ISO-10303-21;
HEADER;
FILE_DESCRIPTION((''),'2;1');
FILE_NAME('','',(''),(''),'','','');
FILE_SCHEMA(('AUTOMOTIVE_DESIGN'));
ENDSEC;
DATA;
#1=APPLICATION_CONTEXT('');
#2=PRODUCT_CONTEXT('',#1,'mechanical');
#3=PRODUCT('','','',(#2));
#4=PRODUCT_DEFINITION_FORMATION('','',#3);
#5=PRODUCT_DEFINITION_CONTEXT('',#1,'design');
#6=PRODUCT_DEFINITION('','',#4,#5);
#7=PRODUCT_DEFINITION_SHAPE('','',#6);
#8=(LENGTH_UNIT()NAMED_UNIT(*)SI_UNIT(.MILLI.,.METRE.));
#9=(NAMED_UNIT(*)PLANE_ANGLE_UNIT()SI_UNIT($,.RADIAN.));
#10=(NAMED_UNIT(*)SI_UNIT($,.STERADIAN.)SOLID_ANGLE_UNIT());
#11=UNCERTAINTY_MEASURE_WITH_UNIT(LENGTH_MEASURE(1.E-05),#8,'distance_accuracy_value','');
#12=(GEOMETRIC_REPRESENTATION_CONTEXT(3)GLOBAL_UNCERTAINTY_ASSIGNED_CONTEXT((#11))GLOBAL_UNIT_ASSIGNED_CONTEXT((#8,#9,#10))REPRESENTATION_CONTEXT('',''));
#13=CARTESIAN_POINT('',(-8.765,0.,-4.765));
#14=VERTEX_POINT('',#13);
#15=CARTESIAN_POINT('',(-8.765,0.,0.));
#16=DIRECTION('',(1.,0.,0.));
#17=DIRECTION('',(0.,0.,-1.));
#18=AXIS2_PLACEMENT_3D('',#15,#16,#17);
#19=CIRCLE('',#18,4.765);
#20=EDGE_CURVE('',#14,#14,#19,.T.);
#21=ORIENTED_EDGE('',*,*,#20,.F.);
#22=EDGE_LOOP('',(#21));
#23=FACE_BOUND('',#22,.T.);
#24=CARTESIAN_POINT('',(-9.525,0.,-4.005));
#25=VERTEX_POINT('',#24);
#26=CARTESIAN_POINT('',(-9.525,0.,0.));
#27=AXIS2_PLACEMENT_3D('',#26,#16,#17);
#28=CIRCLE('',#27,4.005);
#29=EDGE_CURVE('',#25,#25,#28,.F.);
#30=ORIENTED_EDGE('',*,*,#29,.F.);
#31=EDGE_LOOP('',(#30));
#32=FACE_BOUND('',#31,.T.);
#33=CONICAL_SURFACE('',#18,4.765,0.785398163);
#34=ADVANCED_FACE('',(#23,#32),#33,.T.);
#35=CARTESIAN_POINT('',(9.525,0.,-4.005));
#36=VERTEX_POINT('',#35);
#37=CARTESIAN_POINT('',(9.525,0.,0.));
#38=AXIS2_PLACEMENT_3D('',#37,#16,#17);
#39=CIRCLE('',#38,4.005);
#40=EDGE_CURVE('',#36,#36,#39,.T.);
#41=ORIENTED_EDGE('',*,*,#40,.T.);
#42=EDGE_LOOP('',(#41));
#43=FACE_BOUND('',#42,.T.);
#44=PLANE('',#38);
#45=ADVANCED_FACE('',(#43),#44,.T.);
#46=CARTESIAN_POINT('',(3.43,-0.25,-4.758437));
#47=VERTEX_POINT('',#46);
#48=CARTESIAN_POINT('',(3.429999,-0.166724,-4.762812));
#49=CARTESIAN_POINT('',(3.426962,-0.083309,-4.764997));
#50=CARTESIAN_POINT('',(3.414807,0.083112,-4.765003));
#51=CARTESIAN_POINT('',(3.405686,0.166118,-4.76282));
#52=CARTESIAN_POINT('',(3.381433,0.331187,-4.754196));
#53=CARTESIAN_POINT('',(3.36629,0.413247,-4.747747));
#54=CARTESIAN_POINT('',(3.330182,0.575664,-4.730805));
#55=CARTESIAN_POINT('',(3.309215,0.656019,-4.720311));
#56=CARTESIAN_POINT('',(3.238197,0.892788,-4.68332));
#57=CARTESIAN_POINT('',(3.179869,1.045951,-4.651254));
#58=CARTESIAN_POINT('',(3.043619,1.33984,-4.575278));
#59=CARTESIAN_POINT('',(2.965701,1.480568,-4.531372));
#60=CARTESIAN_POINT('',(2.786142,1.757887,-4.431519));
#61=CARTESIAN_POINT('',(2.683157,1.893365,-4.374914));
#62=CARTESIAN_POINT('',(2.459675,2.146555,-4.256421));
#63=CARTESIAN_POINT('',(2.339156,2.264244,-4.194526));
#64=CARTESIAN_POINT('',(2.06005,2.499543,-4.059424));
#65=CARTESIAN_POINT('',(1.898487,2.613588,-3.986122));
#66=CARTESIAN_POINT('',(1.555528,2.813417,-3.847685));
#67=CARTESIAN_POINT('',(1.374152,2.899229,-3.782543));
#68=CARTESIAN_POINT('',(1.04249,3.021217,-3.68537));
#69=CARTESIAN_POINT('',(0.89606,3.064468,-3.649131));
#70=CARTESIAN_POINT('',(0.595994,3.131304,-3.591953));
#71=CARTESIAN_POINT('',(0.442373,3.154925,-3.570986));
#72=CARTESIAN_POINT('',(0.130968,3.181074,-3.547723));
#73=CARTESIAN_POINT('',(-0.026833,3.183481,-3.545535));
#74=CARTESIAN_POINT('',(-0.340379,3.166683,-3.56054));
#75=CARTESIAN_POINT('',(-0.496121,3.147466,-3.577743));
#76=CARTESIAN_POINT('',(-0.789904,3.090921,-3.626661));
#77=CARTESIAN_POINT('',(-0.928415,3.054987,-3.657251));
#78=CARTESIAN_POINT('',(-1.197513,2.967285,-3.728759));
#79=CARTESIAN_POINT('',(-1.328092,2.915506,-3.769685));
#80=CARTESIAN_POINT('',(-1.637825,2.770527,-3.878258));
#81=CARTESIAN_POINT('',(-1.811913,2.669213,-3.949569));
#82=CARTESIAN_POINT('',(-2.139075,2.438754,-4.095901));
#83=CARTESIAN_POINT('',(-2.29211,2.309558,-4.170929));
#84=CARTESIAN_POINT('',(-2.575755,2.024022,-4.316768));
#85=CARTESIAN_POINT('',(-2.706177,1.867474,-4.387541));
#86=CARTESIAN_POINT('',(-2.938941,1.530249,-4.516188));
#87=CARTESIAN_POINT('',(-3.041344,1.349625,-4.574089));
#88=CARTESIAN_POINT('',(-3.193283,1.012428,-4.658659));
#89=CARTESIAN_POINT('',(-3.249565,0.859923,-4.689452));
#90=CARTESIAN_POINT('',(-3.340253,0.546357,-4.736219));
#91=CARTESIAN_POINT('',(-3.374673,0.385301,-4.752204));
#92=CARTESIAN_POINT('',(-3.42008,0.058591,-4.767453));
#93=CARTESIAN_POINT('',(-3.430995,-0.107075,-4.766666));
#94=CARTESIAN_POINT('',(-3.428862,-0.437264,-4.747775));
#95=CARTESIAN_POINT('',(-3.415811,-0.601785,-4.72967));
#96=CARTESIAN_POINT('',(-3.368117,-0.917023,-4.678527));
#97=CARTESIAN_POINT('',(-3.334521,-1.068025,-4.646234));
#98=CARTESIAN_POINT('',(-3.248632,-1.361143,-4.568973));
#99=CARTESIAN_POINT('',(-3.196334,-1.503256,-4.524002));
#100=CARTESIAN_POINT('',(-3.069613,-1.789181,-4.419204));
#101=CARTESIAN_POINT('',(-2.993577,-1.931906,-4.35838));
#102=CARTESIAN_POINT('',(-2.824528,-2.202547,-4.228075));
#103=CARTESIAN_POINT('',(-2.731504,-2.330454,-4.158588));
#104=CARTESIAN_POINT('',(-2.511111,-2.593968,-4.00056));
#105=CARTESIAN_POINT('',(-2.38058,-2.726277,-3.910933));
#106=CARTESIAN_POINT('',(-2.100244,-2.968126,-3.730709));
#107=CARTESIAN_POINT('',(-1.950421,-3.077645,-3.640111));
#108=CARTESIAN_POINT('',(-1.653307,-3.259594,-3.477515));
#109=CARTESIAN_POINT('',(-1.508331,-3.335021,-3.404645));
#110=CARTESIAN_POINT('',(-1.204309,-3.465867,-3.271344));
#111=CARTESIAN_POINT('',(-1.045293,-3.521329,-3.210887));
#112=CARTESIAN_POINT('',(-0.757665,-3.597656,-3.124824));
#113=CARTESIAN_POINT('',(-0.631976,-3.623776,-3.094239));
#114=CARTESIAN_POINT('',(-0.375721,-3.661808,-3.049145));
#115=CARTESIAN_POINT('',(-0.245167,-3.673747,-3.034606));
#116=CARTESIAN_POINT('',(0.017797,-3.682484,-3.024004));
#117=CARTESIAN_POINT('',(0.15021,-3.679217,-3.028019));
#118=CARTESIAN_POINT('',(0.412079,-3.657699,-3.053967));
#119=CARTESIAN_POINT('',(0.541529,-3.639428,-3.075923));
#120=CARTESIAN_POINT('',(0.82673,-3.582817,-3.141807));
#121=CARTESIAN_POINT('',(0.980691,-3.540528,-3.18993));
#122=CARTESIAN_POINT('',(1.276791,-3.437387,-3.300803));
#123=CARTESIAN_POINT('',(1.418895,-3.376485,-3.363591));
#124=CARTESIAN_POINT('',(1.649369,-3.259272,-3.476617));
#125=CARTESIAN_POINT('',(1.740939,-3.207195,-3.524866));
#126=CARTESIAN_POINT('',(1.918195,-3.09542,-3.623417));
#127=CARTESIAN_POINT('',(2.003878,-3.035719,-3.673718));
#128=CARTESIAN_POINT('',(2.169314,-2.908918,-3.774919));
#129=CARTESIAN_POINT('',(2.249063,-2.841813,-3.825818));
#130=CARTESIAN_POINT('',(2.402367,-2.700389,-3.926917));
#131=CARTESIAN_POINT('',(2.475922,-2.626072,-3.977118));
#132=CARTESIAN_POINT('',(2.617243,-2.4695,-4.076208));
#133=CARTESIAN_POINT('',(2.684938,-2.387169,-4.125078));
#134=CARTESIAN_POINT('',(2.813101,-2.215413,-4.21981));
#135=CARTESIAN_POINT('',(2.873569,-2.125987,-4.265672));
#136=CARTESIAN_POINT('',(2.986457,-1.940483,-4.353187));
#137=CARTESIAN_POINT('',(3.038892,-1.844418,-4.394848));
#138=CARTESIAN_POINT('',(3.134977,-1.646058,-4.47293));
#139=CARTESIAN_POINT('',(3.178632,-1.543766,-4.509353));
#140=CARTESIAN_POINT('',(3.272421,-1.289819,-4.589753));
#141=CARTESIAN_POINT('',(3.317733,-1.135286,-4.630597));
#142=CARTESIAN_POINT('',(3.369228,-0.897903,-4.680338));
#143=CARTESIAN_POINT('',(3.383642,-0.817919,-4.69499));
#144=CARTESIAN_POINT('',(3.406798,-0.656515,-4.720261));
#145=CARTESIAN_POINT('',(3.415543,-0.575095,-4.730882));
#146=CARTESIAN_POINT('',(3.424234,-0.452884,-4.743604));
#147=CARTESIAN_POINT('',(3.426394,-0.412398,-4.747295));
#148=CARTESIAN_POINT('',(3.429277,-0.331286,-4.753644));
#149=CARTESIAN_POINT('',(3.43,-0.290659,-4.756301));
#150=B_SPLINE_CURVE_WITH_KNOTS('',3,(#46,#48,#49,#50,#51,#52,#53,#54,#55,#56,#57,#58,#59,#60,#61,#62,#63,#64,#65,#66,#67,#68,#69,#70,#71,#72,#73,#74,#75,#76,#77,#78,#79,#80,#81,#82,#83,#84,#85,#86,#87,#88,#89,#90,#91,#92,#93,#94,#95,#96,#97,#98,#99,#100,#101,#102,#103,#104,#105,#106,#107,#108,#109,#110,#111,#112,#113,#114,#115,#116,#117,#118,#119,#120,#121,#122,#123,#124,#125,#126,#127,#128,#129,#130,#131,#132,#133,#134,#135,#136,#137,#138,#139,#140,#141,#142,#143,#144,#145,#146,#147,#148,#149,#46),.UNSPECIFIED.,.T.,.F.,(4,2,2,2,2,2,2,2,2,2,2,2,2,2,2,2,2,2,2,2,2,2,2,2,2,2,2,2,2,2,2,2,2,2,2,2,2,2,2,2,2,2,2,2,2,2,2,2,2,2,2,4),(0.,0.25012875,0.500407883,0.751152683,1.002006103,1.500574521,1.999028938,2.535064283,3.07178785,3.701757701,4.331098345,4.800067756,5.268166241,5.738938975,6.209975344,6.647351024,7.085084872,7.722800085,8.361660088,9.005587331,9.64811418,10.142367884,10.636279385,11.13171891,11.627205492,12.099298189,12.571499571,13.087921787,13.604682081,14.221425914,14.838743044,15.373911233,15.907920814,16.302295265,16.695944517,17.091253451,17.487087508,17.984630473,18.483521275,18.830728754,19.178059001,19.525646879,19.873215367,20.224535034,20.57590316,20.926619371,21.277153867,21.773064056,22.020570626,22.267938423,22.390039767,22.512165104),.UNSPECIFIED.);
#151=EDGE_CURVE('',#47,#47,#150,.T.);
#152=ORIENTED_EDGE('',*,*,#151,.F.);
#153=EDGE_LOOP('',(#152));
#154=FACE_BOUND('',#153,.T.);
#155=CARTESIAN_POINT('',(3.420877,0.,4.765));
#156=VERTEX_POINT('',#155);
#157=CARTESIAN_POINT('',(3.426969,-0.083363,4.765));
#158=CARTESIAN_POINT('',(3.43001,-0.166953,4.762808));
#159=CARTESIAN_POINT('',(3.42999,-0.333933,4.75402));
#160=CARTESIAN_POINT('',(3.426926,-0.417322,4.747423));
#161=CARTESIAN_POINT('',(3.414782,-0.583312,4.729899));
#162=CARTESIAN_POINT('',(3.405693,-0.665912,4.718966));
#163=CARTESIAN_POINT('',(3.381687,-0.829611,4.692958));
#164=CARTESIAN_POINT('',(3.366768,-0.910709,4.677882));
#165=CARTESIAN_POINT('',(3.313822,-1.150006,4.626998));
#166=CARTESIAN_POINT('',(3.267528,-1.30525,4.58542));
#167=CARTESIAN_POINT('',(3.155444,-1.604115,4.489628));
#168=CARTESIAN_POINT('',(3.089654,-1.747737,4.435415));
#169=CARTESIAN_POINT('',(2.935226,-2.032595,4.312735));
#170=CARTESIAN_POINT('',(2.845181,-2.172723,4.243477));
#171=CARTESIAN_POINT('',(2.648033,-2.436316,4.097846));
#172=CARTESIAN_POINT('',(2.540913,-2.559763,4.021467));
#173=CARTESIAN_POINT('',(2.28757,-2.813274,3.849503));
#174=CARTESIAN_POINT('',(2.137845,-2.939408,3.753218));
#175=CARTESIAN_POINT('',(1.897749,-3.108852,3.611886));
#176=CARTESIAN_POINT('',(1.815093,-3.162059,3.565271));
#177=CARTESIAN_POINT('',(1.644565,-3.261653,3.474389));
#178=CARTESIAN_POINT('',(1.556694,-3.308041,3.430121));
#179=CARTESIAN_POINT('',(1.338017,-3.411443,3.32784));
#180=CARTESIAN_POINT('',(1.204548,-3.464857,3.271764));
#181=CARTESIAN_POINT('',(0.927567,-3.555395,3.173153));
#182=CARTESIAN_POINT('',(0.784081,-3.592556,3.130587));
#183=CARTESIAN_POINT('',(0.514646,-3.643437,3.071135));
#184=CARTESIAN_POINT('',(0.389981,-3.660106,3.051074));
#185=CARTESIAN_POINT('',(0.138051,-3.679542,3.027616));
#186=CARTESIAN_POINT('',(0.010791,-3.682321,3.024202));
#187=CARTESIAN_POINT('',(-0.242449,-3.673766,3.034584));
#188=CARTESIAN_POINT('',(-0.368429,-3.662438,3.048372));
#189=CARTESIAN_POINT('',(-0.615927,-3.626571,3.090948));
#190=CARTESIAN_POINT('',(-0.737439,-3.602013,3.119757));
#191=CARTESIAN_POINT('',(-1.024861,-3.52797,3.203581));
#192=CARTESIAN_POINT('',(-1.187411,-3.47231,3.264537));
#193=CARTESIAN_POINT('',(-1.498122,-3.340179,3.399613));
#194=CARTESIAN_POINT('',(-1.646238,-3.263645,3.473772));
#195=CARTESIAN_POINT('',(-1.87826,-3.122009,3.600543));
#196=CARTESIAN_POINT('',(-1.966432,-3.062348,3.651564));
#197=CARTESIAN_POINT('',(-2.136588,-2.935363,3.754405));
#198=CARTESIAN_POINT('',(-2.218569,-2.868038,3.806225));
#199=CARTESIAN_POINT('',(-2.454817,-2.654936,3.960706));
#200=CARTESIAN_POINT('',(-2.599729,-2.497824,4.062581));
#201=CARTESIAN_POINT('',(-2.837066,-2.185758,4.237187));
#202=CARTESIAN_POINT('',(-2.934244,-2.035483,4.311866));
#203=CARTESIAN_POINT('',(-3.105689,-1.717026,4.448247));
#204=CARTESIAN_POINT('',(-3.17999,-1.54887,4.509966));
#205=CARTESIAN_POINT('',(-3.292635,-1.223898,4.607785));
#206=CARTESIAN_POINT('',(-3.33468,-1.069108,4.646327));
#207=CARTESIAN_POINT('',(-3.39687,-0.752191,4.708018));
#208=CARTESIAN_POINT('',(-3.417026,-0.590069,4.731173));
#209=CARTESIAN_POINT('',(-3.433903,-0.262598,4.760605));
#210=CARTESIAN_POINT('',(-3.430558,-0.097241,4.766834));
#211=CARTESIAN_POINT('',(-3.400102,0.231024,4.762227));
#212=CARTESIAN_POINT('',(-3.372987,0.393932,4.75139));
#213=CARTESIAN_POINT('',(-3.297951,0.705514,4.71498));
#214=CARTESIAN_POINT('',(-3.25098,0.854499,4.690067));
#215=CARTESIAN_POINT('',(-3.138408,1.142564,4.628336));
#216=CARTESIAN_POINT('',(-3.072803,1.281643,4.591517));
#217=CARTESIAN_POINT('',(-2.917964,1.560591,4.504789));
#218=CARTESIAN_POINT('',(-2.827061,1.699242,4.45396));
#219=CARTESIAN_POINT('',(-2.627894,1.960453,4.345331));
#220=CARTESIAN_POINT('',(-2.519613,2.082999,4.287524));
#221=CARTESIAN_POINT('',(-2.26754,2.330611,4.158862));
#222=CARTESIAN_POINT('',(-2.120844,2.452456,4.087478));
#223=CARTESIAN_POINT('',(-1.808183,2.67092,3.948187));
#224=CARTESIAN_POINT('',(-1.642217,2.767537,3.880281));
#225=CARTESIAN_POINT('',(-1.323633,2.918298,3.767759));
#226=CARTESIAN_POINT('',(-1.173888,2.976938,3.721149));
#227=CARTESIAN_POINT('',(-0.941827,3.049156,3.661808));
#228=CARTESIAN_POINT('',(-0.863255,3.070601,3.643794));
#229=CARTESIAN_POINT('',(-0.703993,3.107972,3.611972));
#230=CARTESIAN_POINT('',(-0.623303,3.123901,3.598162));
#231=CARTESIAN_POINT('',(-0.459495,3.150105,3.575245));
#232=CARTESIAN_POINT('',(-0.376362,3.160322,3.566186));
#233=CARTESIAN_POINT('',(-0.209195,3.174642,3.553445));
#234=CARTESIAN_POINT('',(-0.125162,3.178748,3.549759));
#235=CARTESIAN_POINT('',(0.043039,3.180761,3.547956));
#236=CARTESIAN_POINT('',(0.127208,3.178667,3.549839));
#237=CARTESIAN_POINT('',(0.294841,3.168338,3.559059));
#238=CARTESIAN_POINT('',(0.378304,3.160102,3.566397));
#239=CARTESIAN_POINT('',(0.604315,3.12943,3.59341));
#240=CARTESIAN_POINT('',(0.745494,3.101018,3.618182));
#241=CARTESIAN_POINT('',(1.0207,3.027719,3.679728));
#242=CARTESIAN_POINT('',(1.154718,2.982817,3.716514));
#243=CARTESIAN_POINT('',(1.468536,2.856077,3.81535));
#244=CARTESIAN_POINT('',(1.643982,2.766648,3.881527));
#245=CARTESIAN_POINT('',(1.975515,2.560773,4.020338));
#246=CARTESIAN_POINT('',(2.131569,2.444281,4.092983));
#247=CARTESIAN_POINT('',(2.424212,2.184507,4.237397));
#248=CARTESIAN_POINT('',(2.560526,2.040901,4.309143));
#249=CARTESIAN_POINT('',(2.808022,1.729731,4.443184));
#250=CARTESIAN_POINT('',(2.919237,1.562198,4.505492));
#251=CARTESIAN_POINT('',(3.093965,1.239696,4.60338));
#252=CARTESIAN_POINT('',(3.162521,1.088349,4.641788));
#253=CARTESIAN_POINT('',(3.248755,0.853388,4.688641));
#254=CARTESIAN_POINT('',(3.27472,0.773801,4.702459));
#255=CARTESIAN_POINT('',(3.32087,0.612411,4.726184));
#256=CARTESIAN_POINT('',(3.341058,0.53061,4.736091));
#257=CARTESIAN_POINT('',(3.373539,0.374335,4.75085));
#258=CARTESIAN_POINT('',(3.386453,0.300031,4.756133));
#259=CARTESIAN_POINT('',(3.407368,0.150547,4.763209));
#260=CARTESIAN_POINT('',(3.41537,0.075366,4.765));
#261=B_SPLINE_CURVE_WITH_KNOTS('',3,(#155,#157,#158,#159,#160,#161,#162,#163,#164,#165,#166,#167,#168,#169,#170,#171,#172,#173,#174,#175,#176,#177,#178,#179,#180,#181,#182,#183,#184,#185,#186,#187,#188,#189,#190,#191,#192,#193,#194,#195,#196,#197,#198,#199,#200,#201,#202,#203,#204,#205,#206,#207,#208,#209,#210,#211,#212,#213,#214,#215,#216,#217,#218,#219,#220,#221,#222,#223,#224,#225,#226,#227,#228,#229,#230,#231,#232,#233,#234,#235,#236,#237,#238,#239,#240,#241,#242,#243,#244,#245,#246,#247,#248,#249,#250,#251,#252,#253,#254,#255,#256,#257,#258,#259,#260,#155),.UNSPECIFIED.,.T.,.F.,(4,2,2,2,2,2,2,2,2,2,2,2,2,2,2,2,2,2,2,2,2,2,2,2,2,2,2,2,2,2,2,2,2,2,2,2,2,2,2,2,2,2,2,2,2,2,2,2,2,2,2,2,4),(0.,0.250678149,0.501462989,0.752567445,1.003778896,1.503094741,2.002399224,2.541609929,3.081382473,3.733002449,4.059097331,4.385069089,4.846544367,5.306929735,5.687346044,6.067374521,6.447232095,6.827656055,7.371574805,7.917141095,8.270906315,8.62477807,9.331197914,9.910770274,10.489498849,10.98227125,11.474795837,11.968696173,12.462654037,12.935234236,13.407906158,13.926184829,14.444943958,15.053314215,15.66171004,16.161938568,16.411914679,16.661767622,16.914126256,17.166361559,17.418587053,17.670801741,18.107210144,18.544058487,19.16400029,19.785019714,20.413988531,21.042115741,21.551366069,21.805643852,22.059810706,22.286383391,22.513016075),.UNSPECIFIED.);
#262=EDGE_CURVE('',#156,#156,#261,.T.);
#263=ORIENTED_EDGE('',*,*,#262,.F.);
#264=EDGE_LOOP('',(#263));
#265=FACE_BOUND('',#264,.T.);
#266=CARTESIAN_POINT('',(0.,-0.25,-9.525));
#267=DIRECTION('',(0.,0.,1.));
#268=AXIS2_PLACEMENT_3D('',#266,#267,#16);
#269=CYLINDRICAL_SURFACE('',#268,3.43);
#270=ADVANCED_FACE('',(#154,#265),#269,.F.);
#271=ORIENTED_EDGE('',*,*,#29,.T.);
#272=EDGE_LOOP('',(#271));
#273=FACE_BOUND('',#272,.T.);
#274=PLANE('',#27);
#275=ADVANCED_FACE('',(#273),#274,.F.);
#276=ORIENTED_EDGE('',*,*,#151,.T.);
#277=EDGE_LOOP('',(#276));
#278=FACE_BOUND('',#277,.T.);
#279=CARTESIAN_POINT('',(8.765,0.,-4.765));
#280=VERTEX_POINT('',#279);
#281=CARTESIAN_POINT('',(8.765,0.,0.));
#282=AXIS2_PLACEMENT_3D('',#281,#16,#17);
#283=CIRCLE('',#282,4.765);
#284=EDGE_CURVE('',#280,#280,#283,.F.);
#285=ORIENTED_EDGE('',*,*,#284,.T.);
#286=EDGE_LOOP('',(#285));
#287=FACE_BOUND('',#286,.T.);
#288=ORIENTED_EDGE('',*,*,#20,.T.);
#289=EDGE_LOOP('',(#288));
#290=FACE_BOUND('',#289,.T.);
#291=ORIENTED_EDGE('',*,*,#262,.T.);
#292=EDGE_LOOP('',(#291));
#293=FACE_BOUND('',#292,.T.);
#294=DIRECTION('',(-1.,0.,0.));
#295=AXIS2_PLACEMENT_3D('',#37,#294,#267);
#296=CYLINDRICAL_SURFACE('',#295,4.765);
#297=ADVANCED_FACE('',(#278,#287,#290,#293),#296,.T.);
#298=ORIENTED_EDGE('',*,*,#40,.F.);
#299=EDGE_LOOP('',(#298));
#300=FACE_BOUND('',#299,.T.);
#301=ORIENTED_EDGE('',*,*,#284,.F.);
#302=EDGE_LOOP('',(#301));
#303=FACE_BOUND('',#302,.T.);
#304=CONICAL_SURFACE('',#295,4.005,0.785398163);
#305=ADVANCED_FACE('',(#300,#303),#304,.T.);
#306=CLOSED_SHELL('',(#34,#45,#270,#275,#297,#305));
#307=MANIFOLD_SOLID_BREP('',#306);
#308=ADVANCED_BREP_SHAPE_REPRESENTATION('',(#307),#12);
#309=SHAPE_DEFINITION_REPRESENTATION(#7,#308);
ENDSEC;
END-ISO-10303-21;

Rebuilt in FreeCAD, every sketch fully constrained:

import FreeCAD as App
import Part
import Sketcher

V = App.Vector


def edges_at(feature, points):
    """Names of the edges that pass closest to the given points."""
    edges = feature.Shape.Edges
    near = lambda p: min(range(len(edges)), key=lambda i: edges[i].distToShape(Part.Vertex(*p))[0])
    return sorted({f"Edge{near(p) + 1}" for p in points})

doc = App.newDocument("Part")
params = doc.addObject("Spreadsheet::Sheet", "Params")
for row, (alias, value) in enumerate([
    ("pad1_length", "0.75 in"),
    ("chamfer_size", "0.76 mm"),
    ("pocket1_length", "0.75 in"),
], start=1):
    params.set(f"A{row}", alias)
    params.set(f"B{row}", "=" + value)
    params.setAlias(f"B{row}", alias)

body = doc.addObject("PartDesign::Body", "Body")

# Sketch on YZ plane
sketch1 = body.newObject("Sketcher::SketchObject", "Sketch")
sketch1.AttachmentSupport = (doc.getObject("YZ_Plane"), [""])
sketch1.MapMode = "FlatFace"
sketch1.addGeometry(Part.Circle(V(0, 0, 0), V(0, 0, 1), 4.8), False)
sketch1.addConstraint(Sketcher.Constraint("Coincident", 0, 3, -1, 1))
sketch1.addConstraint(Sketcher.Constraint("Diameter", 0, 9.53))
pad1 = body.newObject("PartDesign::Pad", "Pad")
pad1.Profile = sketch1
pad1.setExpression("Length", "Params.pad1_length")
pad1.Midplane = True
doc.recompute()

chamfer = body.newObject("PartDesign::Chamfer", "Chamfer")
chamfer.Base = (pad1, edges_at(pad1, [(-9.525, 0, 4.765), (9.525, 0, 4.765)]))
chamfer.setExpression("Size", "Params.chamfer_size")

# Sketch on XY plane
sketch2 = body.newObject("Sketcher::SketchObject", "Sketch001")
sketch2.AttachmentSupport = (doc.getObject("XY_Plane"), [""])
sketch2.MapMode = "FlatFace"
sketch2.addGeometry(Part.Circle(V(0, -0.2, 0), V(0, 0, 1), 3.4), False)
sketch2.addConstraint(Sketcher.Constraint("PointOnObject", 0, 3, -2))
sketch2.addConstraint(Sketcher.Constraint("Diameter", 0, 6.86))
sketch2.addConstraint(Sketcher.Constraint("DistanceY", 0, 3, -1, 1, 0.25))
pocket1 = body.newObject("PartDesign::Pocket", "Pocket")
pocket1.Profile = sketch2
pocket1.setExpression("Length", "Params.pocket1_length")
pocket1.Midplane = True

doc.recompute()
